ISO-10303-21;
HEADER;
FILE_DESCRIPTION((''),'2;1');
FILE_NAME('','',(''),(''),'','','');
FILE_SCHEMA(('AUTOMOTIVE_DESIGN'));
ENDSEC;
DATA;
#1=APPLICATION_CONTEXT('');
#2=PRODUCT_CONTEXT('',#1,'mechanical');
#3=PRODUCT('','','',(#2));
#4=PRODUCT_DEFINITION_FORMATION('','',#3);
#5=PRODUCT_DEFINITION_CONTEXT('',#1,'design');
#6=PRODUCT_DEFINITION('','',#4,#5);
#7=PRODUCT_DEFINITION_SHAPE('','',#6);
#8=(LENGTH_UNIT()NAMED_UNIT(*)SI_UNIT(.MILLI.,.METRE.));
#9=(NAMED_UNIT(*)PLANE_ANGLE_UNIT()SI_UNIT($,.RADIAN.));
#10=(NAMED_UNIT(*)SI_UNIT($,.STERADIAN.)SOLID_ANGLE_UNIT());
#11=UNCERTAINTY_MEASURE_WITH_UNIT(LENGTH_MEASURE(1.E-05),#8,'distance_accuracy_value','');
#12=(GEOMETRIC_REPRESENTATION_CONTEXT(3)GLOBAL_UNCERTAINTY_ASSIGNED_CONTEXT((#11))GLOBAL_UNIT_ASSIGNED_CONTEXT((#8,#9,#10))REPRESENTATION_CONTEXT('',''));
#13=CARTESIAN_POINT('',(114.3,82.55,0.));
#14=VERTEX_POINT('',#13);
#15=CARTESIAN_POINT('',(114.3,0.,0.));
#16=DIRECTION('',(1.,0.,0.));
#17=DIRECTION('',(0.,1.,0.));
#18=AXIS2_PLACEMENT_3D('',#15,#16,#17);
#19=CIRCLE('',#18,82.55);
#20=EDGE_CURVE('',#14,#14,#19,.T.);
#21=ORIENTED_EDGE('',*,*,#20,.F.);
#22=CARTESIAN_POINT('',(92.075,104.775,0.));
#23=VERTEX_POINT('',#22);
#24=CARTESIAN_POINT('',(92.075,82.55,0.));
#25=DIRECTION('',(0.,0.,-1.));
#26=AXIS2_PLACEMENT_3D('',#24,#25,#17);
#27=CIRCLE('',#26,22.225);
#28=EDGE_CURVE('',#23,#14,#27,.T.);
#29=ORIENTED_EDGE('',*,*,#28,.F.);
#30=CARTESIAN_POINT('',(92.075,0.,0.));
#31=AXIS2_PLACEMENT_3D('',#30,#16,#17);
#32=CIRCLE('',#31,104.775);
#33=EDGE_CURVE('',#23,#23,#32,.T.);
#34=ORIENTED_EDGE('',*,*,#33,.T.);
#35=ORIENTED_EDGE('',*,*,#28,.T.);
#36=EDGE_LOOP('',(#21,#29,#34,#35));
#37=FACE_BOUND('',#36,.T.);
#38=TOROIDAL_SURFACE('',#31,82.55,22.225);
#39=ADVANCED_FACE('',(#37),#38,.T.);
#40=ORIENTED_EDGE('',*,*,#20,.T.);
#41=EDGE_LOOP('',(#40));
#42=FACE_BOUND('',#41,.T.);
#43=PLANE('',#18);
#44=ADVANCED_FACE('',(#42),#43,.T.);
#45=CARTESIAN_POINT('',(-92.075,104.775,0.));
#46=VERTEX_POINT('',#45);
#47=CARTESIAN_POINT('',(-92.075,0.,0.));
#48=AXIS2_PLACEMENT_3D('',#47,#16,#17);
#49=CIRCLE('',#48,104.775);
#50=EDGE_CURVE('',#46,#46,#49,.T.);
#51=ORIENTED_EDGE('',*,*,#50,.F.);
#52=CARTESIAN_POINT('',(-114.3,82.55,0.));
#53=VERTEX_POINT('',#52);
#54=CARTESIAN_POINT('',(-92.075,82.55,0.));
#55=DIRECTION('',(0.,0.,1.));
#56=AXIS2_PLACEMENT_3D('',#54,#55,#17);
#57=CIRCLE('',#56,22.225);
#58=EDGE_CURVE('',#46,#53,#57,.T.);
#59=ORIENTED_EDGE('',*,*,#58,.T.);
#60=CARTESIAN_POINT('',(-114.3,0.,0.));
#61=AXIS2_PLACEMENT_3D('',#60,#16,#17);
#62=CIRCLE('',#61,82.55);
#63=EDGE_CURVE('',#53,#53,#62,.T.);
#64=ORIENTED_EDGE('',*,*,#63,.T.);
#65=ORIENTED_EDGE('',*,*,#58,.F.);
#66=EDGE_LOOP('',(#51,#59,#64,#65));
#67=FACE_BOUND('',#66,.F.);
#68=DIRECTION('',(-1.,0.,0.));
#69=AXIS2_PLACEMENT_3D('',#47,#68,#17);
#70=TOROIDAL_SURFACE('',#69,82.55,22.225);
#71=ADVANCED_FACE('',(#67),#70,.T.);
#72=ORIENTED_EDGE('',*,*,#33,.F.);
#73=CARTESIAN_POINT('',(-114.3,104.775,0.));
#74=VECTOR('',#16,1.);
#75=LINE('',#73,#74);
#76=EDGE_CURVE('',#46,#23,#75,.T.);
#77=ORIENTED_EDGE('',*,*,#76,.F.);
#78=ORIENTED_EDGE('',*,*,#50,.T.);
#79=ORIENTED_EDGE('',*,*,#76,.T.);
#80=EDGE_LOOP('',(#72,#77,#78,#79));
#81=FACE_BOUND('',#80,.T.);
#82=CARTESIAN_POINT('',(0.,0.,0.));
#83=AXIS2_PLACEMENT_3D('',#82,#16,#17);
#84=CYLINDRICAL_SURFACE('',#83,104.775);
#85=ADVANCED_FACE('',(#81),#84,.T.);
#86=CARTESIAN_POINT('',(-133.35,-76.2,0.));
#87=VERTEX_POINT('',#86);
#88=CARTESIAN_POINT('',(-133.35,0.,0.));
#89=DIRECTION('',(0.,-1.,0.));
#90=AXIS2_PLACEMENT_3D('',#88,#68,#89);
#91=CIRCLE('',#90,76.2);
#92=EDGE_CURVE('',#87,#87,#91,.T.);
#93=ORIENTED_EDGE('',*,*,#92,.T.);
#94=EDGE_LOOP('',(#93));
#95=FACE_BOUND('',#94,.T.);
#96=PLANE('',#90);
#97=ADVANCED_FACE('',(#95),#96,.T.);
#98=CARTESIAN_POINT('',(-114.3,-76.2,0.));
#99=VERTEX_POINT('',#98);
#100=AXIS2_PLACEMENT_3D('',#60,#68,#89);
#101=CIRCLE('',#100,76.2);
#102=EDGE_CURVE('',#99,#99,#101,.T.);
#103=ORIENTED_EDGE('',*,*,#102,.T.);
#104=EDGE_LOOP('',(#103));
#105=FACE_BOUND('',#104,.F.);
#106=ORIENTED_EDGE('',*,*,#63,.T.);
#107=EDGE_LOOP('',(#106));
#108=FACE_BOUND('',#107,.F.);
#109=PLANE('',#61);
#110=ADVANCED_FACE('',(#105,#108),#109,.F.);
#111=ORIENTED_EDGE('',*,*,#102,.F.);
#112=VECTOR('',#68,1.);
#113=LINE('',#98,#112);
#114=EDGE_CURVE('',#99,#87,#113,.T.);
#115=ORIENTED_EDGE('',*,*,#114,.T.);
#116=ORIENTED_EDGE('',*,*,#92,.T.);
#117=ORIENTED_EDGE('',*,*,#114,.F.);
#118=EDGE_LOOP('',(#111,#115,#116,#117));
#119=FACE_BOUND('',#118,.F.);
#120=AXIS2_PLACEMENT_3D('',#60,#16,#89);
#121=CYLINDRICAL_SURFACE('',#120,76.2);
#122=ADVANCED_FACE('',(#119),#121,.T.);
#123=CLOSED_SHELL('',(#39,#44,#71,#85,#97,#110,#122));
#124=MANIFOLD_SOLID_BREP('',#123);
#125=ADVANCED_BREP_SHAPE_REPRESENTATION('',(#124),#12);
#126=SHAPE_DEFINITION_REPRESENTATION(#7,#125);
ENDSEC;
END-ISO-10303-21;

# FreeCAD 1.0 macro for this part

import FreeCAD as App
import Part
import Sketcher
Q = App.Units.Quantity


def edges_at(feature, points):
    """Names of the edges that pass closest to the given points."""
    edges = feature.Shape.Edges
    near = lambda p: min(range(len(edges)), key=lambda i: edges[i].distToShape(Part.Vertex(*p))[0])
    return sorted({f"Edge{near(p) + 1}" for p in points})

doc = App.newDocument("Part")
body = doc.addObject("PartDesign::Body", "Body")

# Sketch on YZ plane
sketch1 = body.newObject("Sketcher::SketchObject", "Sketch")
sketch1.AttachmentSupport = (doc.getObject("YZ_Plane"), [""])
sketch1.MapMode = "FlatFace"
sketch1.addGeometry(Part.Circle(App.Vector(0, 0, 0), App.Vector(0, 0, 1), 104.775), False)
sketch1.addConstraint(Sketcher.Constraint("Coincident", 0, 3, -1, 1))
sketch1.addConstraint(Sketcher.Constraint("Diameter", 0, Q("8.25 in")))
pad1 = body.newObject("PartDesign::Pad", "Pad")
pad1.Profile = sketch1
pad1.Type = "TwoLengths"
pad1.Length = Q("4.5 in")
pad1.Length2 = Q("4.5 in")

# Sketch on YZ plane
sketch2 = body.newObject("Sketcher::SketchObject", "Sketch001")
sketch2.AttachmentSupport = (doc.getObject("YZ_Plane"), [""])
sketch2.MapMode = "FlatFace"
sketch2.AttachmentOffset = App.Placement(App.Vector(0, 0, -4.5 * 25.4), App.Rotation())
sketch2.addGeometry(Part.Circle(App.Vector(0, 0, 0), App.Vector(0, 0, 1), 76.2), False)
sketch2.addConstraint(Sketcher.Constraint("Coincident", 0, 3, -1, 1))
sketch2.addConstraint(Sketcher.Constraint("Diameter", 0, Q("6 in")))
pad2 = body.newObject("PartDesign::Pad", "Pad001")
pad2.Profile = sketch2
pad2.Length = Q("0.75 in")
pad2.Reversed = True
doc.recompute()

fillet = body.newObject("PartDesign::Fillet", "Fillet")
fillet.Base = (pad2, edges_at(pad2, [(-114.3, -104.775, 0), (114.3, -104.775, 0)]))
fillet.Radius = Q("0.875 in")

doc.recompute()
